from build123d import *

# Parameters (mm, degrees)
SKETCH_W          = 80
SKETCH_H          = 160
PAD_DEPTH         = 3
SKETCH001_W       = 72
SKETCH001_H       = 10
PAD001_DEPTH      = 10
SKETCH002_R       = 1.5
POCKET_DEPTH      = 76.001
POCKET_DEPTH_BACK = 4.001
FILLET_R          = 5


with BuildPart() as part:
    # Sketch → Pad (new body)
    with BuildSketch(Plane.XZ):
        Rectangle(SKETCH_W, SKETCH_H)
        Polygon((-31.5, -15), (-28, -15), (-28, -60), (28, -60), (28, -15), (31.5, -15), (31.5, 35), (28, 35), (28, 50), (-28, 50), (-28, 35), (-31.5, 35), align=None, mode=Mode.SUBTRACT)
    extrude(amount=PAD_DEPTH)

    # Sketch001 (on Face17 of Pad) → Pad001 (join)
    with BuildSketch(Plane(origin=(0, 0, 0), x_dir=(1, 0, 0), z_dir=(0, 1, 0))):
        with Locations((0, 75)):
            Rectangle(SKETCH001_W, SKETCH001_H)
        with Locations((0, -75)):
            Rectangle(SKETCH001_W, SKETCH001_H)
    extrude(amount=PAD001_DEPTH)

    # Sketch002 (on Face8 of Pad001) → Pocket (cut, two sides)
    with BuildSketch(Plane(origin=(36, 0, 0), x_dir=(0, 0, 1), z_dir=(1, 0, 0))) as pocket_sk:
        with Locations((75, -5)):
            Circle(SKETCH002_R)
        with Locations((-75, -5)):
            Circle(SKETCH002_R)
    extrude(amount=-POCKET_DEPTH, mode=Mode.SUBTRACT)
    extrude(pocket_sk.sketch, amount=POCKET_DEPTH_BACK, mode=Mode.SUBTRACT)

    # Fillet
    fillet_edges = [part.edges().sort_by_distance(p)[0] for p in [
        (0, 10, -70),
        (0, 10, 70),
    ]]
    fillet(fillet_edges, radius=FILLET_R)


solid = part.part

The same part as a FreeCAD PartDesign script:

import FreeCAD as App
import Part
import Sketcher
from FreeCAD import Vector
Q = App.Units.Quantity


def edges_at(feature, points):
    """Names of the edges that pass closest to the given points."""
    edges = feature.Shape.Edges
    near = lambda p: min(range(len(edges)), key=lambda i: edges[i].distToShape(Part.Vertex(*p))[0])
    return sorted({f"Edge{near(p) + 1}" for p in points})


def add_polygon(sketch, points):
    """Adds a closed chain of lines whose ends are joined by coincident constraints."""
    first, n = sketch.GeometryCount, len(points)
    for a, b in zip(points, points[1:] + points[:1]):
        sketch.addGeometry(Part.LineSegment(App.Vector(*a, 0), App.Vector(*b, 0)), False)
    for i in range(n):
        sketch.addConstraint(Sketcher.Constraint("Coincident", first + i, 2, first + (i + 1) % n, 1))

doc = App.newDocument("Part")
body = doc.addObject("PartDesign::Body", "Body")

# Sketch on XZ plane
sketch1 = body.newObject("Sketcher::SketchObject", "Sketch")
sketch1.AttachmentSupport = (doc.getObject("XZ_Plane"), [""])
sketch1.MapMode = "FlatFace"
add_polygon(sketch1, [(-40, 80), (-40, -80), (40, -80), (40, 80)])  # lines 0-3
add_polygon(sketch1, [(-28, -15), (-31.5, -15), (-31.5, 35), (-28, 35), (-28, 50), (28, 50), (28, 35), (31.5, 35), (31.5, -15), (28, -15), (28, -60), (-28, -60)])  # lines 4-15
sketch1.addConstraint(Sketcher.Constraint("Vertical", 0))
sketch1.addConstraint(Sketcher.Constraint("Horizontal", 1))
sketch1.addConstraint(Sketcher.Constraint("Vertical", 2))
sketch1.addConstraint(Sketcher.Constraint("Horizontal", 3))
sketch1.addConstraint(Sketcher.Constraint("Horizontal", 4))
sketch1.addConstraint(Sketcher.Constraint("Vertical", 5))
sketch1.addConstraint(Sketcher.Constraint("Horizontal", 6))
sketch1.addConstraint(Sketcher.Constraint("Vertical", 7))
sketch1.addConstraint(Sketcher.Constraint("Horizontal", 8))
sketch1.addConstraint(Sketcher.Constraint("Vertical", 9))
sketch1.addConstraint(Sketcher.Constraint("Horizontal", 10))
sketch1.addConstraint(Sketcher.Constraint("Vertical", 11))
sketch1.addConstraint(Sketcher.Constraint("Horizontal", 12))
sketch1.addConstraint(Sketcher.Constraint("Vertical", 13))
sketch1.addConstraint(Sketcher.Constraint("Horizontal", 14))
sketch1.addConstraint(Sketcher.Constraint("Vertical", 15))
sketch1.addConstraint(Sketcher.Constraint("Symmetric", 0, 2, 2, 2, -1, 1))
sketch1.addConstraint(Sketcher.Constraint("Symmetric", 6, 2, 9, 2, -2))
sketch1.addConstraint(Sketcher.Constraint("Symmetric", 4, 2, 11, 2, -2))
sketch1.addConstraint(Sketcher.Constraint("Vertical", 9, 2, 12, 2))
sketch1.addConstraint(Sketcher.Constraint("Vertical", 7, 2, 14, 2))
sketch1.addConstraint(Sketcher.Constraint("DistanceX", 1, 1, 1, 2, Q("80 mm")))
sketch1.addConstraint(Sketcher.Constraint("DistanceX", 8, 1, 8, 2, Q("56 mm")))
sketch1.addConstraint(Sketcher.Constraint("DistanceY", 0, 2, 0, 1, Q("160 mm")))
sketch1.addConstraint(Sketcher.Constraint("DistanceY", 5, 1, 5, 2, Q("50 mm")))
sketch1.addConstraint(Sketcher.Constraint("DistanceY", 7, 1, 7, 2, Q("15 mm")))
sketch1.addConstraint(Sketcher.Constraint("DistanceY", 13, 2, 13, 1, Q("45 mm")))
sketch1.addConstraint(Sketcher.Constraint("DistanceX", 4, 2, 4, 1, Q("3.5 mm")))
sketch1.addConstraint(Sketcher.Constraint("DistanceY", 4, 2, -1, 1, Q("15 mm")))
pad1 = body.newObject("PartDesign::Pad", "Pad")
pad1.Profile = sketch1
pad1.Length = 3

# Sketch on XZ plane
sketch2 = body.newObject("Sketcher::SketchObject", "Sketch001")
sketch2.AttachmentSupport = (doc.getObject("XZ_Plane"), [""])
sketch2.MapMode = "FlatFace"
add_polygon(sketch2, [(-36, -80), (-36, -70), (36, -70), (36, -80)])  # lines 0-3
add_polygon(sketch2, [(-36, 70), (-36, 80), (36, 80), (36, 70)])  # lines 4-7
sketch2.addConstraint(Sketcher.Constraint("Vertical", 0))
sketch2.addConstraint(Sketcher.Constraint("Horizontal", 1))
sketch2.addConstraint(Sketcher.Constraint("Vertical", 2))
sketch2.addConstraint(Sketcher.Constraint("Horizontal", 3))
sketch2.addConstraint(Sketcher.Constraint("Vertical", 4))
sketch2.addConstraint(Sketcher.Constraint("Horizontal", 5))
sketch2.addConstraint(Sketcher.Constraint("Vertical", 6))
sketch2.addConstraint(Sketcher.Constraint("Horizontal", 7))
sketch2.addConstraint(Sketcher.Constraint("Symmetric", 2, 2, 4, 2, -1, 1))
sketch2.addConstraint(Sketcher.Constraint("Symmetric", 0, 2, 6, 2, -1, 1))
sketch2.addConstraint(Sketcher.Constraint("Vertical", 3, 2, 4, 2))
sketch2.addConstraint(Sketcher.Constraint("DistanceX", 1, 1, 1, 2, Q("72 mm")))
sketch2.addConstraint(Sketcher.Constraint("DistanceY", 0, 1, 0, 2, Q("10 mm")))
sketch2.addConstraint(Sketcher.Constraint("DistanceY", 0, 2, -1, 1, Q("70 mm")))
pad2 = body.newObject("PartDesign::Pad", "Pad001")
pad2.Profile = sketch2
pad2.Length = 10
pad2.Reversed = True

# Sketch on YZ plane
sketch3 = body.newObject("Sketcher::SketchObject", "Sketch002")
sketch3.AttachmentSupport = (doc.getObject("YZ_Plane"), [""])
sketch3.MapMode = "FlatFace"
sketch3.AttachmentOffset = App.Placement(Vector(0, 0, 36), App.Rotation())
sketch3.addGeometry(Part.Circle(Vector(5, 75, 0), Vector(0, 0, 1), 1.5), False)
sketch3.addGeometry(Part.Circle(Vector(5, -75, 0), Vector(0, 0, 1), 1.5), False)
sketch3.addConstraint(Sketcher.Constraint("Equal", 0, 1))
sketch3.addConstraint(Sketcher.Constraint("Symmetric", 0, 3, 1, 3, -1))
sketch3.addConstraint(Sketcher.Constraint("Diameter", 0, Q("3 mm")))
sketch3.addConstraint(Sketcher.Constraint("DistanceX", -1, 1, 0, 3, Q("5 mm")))
sketch3.addConstraint(Sketcher.Constraint("DistanceY", -1, 1, 0, 3, Q("75 mm")))
pocket1 = body.newObject("PartDesign::Pocket", "Pocket")
pocket1.Profile = sketch3
pocket1.Type = "ThroughAll"
pocket1.Midplane = True
doc.recompute()

fillet = body.newObject("PartDesign::Fillet", "Fillet")
fillet.Base = (pocket1, edges_at(pocket1, [(0, 10, -70), (0, 10, 70)]))
fillet.Radius = 5

doc.recompute()
